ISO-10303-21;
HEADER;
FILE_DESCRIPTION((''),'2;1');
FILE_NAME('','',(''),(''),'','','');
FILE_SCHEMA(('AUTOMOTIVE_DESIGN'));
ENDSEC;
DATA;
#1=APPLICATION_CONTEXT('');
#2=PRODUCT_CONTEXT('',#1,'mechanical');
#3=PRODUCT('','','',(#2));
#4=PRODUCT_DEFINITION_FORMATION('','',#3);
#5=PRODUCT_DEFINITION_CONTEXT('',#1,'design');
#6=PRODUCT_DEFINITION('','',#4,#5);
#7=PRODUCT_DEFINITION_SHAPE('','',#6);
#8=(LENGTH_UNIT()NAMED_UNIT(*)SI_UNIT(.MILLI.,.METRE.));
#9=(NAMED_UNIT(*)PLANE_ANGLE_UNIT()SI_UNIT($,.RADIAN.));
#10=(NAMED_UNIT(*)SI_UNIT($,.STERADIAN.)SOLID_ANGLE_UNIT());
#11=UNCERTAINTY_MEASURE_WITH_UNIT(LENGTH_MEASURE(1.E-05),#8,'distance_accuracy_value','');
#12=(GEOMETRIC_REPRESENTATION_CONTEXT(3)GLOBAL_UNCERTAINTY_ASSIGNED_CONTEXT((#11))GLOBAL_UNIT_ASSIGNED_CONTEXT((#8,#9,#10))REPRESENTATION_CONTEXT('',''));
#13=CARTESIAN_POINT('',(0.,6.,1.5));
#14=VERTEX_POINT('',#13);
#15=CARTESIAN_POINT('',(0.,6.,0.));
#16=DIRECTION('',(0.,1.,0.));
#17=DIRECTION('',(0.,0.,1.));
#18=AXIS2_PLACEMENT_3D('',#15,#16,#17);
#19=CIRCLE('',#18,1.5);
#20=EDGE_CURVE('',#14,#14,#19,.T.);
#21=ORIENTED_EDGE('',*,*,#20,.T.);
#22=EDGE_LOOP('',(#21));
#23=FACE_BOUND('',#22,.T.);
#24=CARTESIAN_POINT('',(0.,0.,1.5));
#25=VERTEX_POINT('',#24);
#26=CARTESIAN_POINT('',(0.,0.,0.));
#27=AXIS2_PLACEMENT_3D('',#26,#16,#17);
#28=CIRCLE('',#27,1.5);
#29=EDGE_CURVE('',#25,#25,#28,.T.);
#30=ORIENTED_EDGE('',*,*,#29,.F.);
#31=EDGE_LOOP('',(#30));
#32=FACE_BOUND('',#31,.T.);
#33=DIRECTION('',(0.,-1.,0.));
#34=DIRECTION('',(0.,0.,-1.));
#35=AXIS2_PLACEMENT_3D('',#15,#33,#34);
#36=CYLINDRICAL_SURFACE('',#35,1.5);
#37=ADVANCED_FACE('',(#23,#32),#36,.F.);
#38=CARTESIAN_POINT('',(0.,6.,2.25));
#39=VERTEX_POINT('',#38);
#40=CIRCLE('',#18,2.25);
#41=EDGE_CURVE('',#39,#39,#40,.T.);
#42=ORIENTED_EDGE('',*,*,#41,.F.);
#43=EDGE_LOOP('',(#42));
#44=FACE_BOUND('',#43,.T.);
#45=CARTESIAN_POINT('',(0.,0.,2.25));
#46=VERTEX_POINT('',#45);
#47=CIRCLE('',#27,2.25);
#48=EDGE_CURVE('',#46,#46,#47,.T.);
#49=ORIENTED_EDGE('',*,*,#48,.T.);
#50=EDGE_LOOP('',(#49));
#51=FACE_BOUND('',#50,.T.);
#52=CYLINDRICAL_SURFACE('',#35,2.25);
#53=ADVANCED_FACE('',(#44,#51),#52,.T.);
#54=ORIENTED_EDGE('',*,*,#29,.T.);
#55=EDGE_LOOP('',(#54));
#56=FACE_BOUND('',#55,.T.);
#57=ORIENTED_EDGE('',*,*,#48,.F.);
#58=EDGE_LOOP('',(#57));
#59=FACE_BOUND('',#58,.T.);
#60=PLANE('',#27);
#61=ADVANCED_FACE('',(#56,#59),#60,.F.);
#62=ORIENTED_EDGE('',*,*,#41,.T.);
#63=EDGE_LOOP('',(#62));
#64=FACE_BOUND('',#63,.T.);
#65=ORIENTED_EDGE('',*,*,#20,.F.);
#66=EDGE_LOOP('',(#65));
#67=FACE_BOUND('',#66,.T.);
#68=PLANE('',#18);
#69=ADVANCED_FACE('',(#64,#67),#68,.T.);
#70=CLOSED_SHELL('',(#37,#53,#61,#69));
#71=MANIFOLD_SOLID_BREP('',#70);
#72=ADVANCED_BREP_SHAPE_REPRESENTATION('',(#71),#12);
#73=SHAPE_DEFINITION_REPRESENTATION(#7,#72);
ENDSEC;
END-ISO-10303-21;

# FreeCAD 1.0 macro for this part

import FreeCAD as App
import Part
import Sketcher

V = App.Vector
Q = App.Units.Quantity

doc = App.newDocument("Part")
body = doc.addObject("PartDesign::Body", "Body")

# Sketch on XZ plane
sketch1 = doc.addObject("Sketcher::SketchObject", "Sketch")
body.addObject(sketch1)
sketch1.AttachmentSupport = (doc.XZ_Plane, [""])
sketch1.MapMode = "FlatFace"
sketch1.addGeometry(Part.Circle(V(0, 0, 0), V(0, 0, 1), 2.2), False)
sketch1.addGeometry(Part.Circle(V(0, 0, 0), V(0, 0, 1), 1.5), False)
sketch1.addConstraint(Sketcher.Constraint("Coincident", 0, 3, -1, 1))
sketch1.addConstraint(Sketcher.Constraint("Coincident", 1, 3, -1, 1))
sketch1.addConstraint(Sketcher.Constraint("Diameter", 1, Q("3 mm")))
sketch1.addConstraint(Sketcher.Constraint("Diameter", 0, Q("4.5 mm")))
pad1 = doc.addObject("PartDesign::Pad", "Pad")
body.addObject(pad1)
pad1.Profile = sketch1
pad1.Length = 6
pad1.Reversed = True

doc.recompute()
